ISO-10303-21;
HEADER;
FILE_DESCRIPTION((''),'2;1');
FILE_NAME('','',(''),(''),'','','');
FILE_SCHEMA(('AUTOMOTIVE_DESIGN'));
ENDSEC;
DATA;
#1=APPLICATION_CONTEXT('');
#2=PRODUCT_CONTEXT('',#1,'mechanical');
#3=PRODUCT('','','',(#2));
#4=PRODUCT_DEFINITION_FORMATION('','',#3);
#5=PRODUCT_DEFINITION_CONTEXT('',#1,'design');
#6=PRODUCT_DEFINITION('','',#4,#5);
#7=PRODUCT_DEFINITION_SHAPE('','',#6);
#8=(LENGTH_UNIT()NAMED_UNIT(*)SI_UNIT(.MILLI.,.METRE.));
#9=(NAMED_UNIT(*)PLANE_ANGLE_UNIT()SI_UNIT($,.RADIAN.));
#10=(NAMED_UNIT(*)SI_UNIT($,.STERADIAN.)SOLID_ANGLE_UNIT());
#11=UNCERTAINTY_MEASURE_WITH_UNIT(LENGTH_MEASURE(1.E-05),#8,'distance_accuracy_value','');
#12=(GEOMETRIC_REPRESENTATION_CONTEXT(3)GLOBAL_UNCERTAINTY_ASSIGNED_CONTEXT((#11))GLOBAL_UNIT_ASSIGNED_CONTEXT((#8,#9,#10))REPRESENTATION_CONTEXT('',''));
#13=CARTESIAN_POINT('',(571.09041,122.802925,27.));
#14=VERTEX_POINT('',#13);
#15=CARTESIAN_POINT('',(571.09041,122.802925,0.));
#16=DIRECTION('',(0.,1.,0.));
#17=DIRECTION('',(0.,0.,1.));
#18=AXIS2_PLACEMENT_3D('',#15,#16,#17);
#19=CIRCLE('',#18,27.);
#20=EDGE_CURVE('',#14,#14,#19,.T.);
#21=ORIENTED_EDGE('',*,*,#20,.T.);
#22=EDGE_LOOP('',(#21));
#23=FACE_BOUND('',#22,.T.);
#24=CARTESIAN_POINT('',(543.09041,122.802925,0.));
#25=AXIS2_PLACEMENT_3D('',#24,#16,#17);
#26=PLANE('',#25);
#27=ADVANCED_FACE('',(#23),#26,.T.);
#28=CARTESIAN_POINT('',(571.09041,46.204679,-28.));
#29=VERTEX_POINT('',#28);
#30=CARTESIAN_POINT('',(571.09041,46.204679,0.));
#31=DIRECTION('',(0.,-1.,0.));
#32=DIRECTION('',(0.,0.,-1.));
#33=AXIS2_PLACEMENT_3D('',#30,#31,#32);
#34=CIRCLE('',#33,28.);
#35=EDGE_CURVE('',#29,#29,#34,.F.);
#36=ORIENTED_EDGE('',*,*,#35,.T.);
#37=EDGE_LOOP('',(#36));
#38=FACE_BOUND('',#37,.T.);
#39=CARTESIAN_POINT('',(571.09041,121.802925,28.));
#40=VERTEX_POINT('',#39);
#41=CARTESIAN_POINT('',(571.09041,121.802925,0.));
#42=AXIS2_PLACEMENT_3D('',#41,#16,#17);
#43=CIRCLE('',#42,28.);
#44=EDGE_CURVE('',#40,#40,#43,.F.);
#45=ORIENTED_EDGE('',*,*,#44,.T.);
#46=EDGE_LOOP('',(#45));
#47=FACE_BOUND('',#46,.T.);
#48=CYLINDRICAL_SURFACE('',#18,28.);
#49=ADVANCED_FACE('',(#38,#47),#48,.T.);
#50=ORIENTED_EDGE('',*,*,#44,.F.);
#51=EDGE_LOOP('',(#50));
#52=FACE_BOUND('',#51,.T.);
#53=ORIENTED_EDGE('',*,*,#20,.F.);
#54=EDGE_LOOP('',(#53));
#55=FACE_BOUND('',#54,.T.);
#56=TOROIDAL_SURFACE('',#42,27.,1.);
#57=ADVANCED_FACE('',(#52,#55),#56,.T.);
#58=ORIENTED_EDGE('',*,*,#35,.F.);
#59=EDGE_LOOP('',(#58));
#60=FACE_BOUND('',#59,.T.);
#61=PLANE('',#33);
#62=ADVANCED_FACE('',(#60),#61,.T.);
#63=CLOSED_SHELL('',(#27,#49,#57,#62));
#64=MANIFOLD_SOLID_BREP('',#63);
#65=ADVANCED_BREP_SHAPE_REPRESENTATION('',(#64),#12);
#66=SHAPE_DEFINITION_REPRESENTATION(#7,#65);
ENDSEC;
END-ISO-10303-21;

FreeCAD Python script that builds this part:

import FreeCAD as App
import Part
import Sketcher

V = App.Vector
Q = App.Units.Quantity


def edges_at(feature, points):
    """Names of the edges that pass closest to the given points."""
    edges = feature.Shape.Edges
    near = lambda p: min(range(len(edges)), key=lambda i: edges[i].distToShape(Part.Vertex(*p))[0])
    return sorted({f"Edge{near(p) + 1}" for p in points})


def add_polygon(sketch, points):
    """Adds a closed chain of lines whose ends are joined by coincident constraints."""
    first, n = sketch.GeometryCount, len(points)
    for a, b in zip(points, points[1:] + points[:1]):
        sketch.addGeometry(Part.LineSegment(App.Vector(*a, 0), App.Vector(*b, 0)), False)
    for i in range(n):
        sketch.addConstraint(Sketcher.Constraint("Coincident", first + i, 2, first + (i + 1) % n, 1))

doc = App.newDocument("Part")
params = doc.addObject("Spreadsheet::Sheet", "Params")
for row, (alias, value) in enumerate([
    ("sketch1_width", "28 mm"),
    ("revolution_angle", "360 deg"),
    ("pocket1_length", "3 mm"),
    ("fillet_radius", "1 mm"),
], start=1):
    params.set(f"A{row}", alias)
    params.set(f"B{row}", "=" + value)
    params.setAlias(f"B{row}", alias)

body = doc.addObject("PartDesign::Body", "Body")

# Sketch on XY plane
sketch1 = doc.addObject("Sketcher::SketchObject", "Sketch")
body.addObject(sketch1)
sketch1.AttachmentSupport = (doc.XY_Plane, [""])
sketch1.MapMode = "FlatFace"
add_polygon(sketch1, [(571.1, 122.8), (543.1, 122.8), (543.1, 45.9), (546.3, 44.1), (552.2, 43.2), (571.1, 43.2)])  # lines 0-5
sketch1.addGeometry(Part.LineSegment(V(571.1, 122.8, 0), V(571.1, 43.2, 0)), True)  # axis
sketch1.addConstraint(Sketcher.Constraint("Horizontal", 0))
sketch1.addConstraint(Sketcher.Constraint("Vertical", 1))
sketch1.addConstraint(Sketcher.Constraint("Horizontal", 4))
sketch1.addConstraint(Sketcher.Constraint("Vertical", 5))
sketch1.addConstraint(Sketcher.Constraint("Vertical", 6))
sketch1.addConstraint(Sketcher.Constraint("Coincident", 6, 1, 5, 2))
sketch1.addConstraint(Sketcher.Constraint("Horizontal", 3, 2, 6, 2))
sketch1.addConstraint(Sketcher.Constraint("DistanceX", 0, 2, 0, 1, Q("28 mm")))
sketch1.addConstraint(Sketcher.Constraint("Distance", 2, Q("3.62952 mm")))
sketch1.addConstraint(Sketcher.Constraint("DistanceX", 4, 1, 4, 2, Q("18.840528 mm")))
sketch1.addConstraint(Sketcher.Constraint("DistanceY", 1, 2, 1, 1, Q("76.923356 mm")))
sketch1.addConstraint(Sketcher.Constraint("DistanceY", 5, 1, 5, 2, Q("79.598246 mm")))
sketch1.addConstraint(Sketcher.Constraint("DistanceX", -1, 1, 0, 2, Q("543.09041 mm")))
sketch1.addConstraint(Sketcher.Constraint("DistanceY", -1, 1, 1, 2, Q("45.879569 mm")))
sketch1.addConstraint(Sketcher.Constraint("DistanceY", -1, 1, 2, 2, Q("44.096309 mm")))
sketch1.setExpression("Constraints[13]", "Params.sketch1_width")
revolution = doc.addObject("PartDesign::Revolution", "Revolution")
body.addObject(revolution)
revolution.Profile = sketch1
revolution.ReferenceAxis = (sketch1, ["Axis0"])
revolution.setExpression("Angle", "Params.revolution_angle")

# Sketch on XZ plane
sketch2 = doc.addObject("Sketcher::SketchObject", "Sketch001")
body.addObject(sketch2)
sketch2.AttachmentSupport = (doc.XZ_Plane, [""])
sketch2.MapMode = "FlatFace"
sketch2.AttachmentOffset = App.Placement(V(0, 0, -43.204679), App.Rotation())
sketch2.addGeometry(Part.Circle(V(571, 0, 0), V(0, 0, 1), 30), False)
sketch2.addConstraint(Sketcher.Constraint("PointOnObject", 0, 3, -1))
sketch2.addConstraint(Sketcher.Constraint("Diameter", 0, Q("59.432017 mm")))
sketch2.addConstraint(Sketcher.Constraint("DistanceX", -1, 1, 0, 3, Q("571.09041 mm")))
pocket1 = doc.addObject("PartDesign::Pocket", "Pocket")
body.addObject(pocket1)
pocket1.Profile = sketch2
pocket1.setExpression("Length", "Params.pocket1_length")
doc.recompute()

fillet = doc.addObject("PartDesign::Fillet", "Fillet")
body.addObject(fillet)
fillet.Base = (pocket1, edges_at(pocket1, [(571.09, 122.803, -28)]))
fillet.setExpression("Radius", "Params.fillet_radius")

doc.recompute()
